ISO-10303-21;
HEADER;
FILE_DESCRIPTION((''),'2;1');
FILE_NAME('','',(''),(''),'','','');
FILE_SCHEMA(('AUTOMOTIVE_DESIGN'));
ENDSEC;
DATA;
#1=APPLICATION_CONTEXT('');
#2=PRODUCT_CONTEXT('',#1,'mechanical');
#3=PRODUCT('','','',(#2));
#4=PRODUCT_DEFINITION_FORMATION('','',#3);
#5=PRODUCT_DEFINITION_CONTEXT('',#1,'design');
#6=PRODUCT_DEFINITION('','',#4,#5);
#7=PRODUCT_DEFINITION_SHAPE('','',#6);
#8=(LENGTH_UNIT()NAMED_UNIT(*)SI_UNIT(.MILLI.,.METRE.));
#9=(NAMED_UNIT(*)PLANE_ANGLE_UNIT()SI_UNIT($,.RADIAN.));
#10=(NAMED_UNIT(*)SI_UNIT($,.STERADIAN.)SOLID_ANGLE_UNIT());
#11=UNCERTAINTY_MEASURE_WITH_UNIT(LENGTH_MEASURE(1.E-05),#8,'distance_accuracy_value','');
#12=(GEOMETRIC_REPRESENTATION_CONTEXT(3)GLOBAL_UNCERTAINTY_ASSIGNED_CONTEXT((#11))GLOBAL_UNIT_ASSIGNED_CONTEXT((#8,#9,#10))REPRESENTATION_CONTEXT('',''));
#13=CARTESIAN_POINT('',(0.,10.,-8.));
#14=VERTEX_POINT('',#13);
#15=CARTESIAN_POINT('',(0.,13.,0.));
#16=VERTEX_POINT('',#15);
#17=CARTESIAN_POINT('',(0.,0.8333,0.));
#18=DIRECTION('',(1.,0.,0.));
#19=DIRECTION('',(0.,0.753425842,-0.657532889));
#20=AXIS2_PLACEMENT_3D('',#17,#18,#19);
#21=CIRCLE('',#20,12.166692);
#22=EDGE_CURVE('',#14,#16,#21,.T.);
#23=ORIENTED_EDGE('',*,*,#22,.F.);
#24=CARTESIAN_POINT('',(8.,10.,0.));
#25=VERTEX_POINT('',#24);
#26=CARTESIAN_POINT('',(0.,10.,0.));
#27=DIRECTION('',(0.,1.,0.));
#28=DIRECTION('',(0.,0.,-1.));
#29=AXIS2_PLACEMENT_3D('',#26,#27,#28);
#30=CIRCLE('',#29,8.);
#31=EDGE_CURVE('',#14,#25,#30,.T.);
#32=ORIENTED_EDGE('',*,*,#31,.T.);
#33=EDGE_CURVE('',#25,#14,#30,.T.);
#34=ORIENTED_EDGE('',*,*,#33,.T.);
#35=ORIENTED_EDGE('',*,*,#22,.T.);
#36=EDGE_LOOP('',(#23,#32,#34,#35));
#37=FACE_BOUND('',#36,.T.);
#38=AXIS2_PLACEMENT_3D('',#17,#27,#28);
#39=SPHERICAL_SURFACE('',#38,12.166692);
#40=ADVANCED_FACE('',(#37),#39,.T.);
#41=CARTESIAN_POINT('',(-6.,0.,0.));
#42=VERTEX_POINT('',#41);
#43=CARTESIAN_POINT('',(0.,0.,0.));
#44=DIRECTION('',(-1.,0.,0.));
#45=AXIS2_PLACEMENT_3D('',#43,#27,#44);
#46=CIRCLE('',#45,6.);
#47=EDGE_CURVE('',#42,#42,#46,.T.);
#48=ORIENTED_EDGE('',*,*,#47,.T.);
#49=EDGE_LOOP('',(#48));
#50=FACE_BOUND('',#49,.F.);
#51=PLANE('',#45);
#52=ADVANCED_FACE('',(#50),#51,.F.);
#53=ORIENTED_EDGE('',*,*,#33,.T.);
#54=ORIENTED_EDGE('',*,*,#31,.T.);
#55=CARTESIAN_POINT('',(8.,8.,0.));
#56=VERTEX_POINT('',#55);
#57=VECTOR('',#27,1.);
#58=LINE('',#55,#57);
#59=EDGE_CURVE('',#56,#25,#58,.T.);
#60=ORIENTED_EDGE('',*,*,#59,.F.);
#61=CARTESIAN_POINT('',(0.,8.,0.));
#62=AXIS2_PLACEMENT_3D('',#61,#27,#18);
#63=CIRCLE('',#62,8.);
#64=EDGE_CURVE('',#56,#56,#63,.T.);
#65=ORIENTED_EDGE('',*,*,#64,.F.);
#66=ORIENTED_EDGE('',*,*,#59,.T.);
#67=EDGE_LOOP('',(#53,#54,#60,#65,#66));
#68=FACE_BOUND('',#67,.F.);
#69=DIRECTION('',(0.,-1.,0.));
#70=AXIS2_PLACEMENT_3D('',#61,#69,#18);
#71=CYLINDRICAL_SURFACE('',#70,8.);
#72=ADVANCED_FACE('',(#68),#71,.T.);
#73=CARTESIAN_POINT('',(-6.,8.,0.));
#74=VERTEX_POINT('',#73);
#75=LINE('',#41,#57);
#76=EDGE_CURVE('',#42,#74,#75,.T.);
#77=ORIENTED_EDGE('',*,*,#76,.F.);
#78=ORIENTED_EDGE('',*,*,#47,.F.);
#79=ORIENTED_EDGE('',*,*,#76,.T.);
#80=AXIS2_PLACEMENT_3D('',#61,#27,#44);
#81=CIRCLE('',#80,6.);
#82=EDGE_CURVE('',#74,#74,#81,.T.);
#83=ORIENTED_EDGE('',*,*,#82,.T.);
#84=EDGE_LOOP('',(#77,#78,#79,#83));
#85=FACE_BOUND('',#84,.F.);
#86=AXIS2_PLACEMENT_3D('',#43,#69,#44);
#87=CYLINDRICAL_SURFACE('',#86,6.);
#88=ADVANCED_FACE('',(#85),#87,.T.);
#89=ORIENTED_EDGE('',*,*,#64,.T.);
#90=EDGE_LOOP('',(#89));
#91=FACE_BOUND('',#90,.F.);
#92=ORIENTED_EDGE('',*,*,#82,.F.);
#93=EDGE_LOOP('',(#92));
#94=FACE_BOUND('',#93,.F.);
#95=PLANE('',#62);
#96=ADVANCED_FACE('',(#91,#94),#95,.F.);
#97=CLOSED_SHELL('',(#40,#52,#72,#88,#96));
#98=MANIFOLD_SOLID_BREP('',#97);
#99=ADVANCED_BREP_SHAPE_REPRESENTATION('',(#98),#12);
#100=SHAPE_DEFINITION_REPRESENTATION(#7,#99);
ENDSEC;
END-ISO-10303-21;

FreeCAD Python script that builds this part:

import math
import FreeCAD as App
import Part
import Sketcher

doc = App.newDocument("Part")
params = doc.addObject("Spreadsheet::Sheet", "Params")
for row, (alias, value) in enumerate([
    ("sketch1_diameter", "12 mm"),
    ("pad1_length", "8 mm"),
    ("sketch2_diameter", "16 mm"),
    ("pad2_length", "5 mm"),
    ("sketch3_width", "3 mm"),
    ("sketch3_height", "8 mm"),
    ("groove_angle", "360 deg"),
], start=1):
    params.set(f"A{row}", alias)
    params.set(f"B{row}", "=" + value)
    params.setAlias(f"B{row}", alias)

body = doc.addObject("PartDesign::Body", "Body")

sketch1 = body.newObject("Sketcher::SketchObject", "Sketch")
sketch1.AttachmentSupport = (doc.getObject("XZ_Plane"), [""])
sketch1.MapMode = "FlatFace"
sketch1.addGeometry(Part.Circle(App.Vector(0, 0, 0), App.Vector(0, 0, 1), 6), False)
sketch1.addConstraint([
    Sketcher.Constraint("Coincident", 0, 3, -1, 1),
    Sketcher.Constraint("Diameter", 0, 12.0),
])
sketch1.setExpression("Constraints[1]", "Params.sketch1_diameter")
pad1 = body.newObject("PartDesign::Pad", "Pad")
pad1.Profile = sketch1
pad1.setExpression("Length", "Params.pad1_length")
pad1.Reversed = True

sketch2 = body.newObject("Sketcher::SketchObject", "Sketch001")
sketch2.AttachmentSupport = (doc.getObject("XZ_Plane"), [""])
sketch2.MapMode = "FlatFace"
sketch2.AttachmentOffset = App.Placement(App.Vector(0, 0, -8), App.Rotation())
sketch2.addGeometry(Part.Circle(App.Vector(0, 0, 0), App.Vector(0, 0, 1), 8), False)
sketch2.addConstraint([
    Sketcher.Constraint("Coincident", 0, 3, -1, 1),
    Sketcher.Constraint("Diameter", 0, 16.0),
])
sketch2.setExpression("Constraints[1]", "Params.sketch2_diameter")
pad2 = body.newObject("PartDesign::Pad", "Pad001")
pad2.Profile = sketch2
pad2.setExpression("Length", "Params.pad2_length")
pad2.Reversed = True

sketch3 = body.newObject("Sketcher::SketchObject", "Sketch002")
sketch3.AttachmentSupport = (doc.getObject("YZ_Plane"), [""])
sketch3.MapMode = "FlatFace"
sketch3.addGeometry([
    Part.LineSegment(App.Vector(10, -8, 0), App.Vector(13, -8, 0)),
    Part.LineSegment(App.Vector(13, -8, 0), App.Vector(13, 0, 0)),
    Part.ArcOfCircle(Part.Circle(App.Vector(0.8333, 0, 0), App.Vector(0, 0, 1), 12.166692), math.radians(-41.111987), math.radians(0)),
    Part.ArcOfCircle(Part.Circle(App.Vector(0.8333, 0, 0), App.Vector(0, 0, 1), 12.166692), math.radians(0), math.radians(41.111987)),
    Part.LineSegment(App.Vector(13, 0, 0), App.Vector(13, 8, 0)),
    Part.LineSegment(App.Vector(13, 8, 0), App.Vector(10, 8, 0)),
], False)
sketch3.addConstraint([
    Sketcher.Constraint("Coincident", 0, 2, 1, 1),
    Sketcher.Constraint("Tangent", 1, 2, 2, 2),
    Sketcher.Constraint("Coincident", 2, 1, 0, 1),
    Sketcher.Constraint("Tangent", 3, 1, 4, 1),
    Sketcher.Constraint("Coincident", 4, 2, 5, 1),
    Sketcher.Constraint("Coincident", 5, 2, 3, 2),
    Sketcher.Constraint("Horizontal", 0),
    Sketcher.Constraint("Vertical", 1),
    Sketcher.Constraint("Vertical", 4),
    Sketcher.Constraint("Horizontal", 5),
    Sketcher.Constraint("Coincident", 3, 3, 2, 3),
    Sketcher.Constraint("Equal", 2, 3),
    Sketcher.Constraint("Symmetric", 2, 1, 5, 2, -1),
    Sketcher.Constraint("DistanceX", 0, 1, 0, 2, 3.0),
    Sketcher.Constraint("DistanceY", 1, 1, 1, 2, 8.0),
    Sketcher.Constraint("DistanceX", -1, 1, 0, 2, 13.0),
])
sketch3.setExpression("Constraints[13]", "Params.sketch3_width")
sketch3.setExpression("Constraints[14]", "Params.sketch3_height")
groove = body.newObject("PartDesign::Groove", "Groove")
groove.Profile = sketch3
groove.ReferenceAxis = (sketch3, ["H_Axis"])
groove.setExpression("Angle", "Params.groove_angle")

doc.recompute()
